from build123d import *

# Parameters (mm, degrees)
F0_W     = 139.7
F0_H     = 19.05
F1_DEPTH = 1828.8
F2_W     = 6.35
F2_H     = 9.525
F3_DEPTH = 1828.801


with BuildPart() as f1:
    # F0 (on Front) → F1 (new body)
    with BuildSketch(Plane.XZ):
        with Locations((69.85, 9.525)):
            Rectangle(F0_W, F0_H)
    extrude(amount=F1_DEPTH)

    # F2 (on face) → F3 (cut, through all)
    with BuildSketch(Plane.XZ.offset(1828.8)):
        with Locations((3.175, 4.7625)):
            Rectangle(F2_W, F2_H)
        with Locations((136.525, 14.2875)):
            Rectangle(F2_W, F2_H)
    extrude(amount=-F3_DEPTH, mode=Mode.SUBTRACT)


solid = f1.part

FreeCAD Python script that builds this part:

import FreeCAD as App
import Part
import Sketcher

V = App.Vector
Q = App.Units.Quantity

doc = App.newDocument("Part")
body = doc.addObject("PartDesign::Body", "Body")

# Sketch on XZ plane
sketch1 = body.newObject("Sketcher::SketchObject", "Sketch")
sketch1.AttachmentSupport = (doc.getObject("XZ_Plane"), [""])
sketch1.MapMode = "FlatFace"
sketch1.addGeometry([
    Part.LineSegment(V(0, 19, 0), V(0, 0, 0)),
    Part.LineSegment(V(0, 0, 0), V(140, 0, 0)),
    Part.LineSegment(V(140, 0, 0), V(140, 19, 0)),
    Part.LineSegment(V(140, 19, 0), V(0, 19, 0)),
], False)
sketch1.addConstraint([
    Sketcher.Constraint("Coincident", 0, 2, 1, 1),
    Sketcher.Constraint("Coincident", 1, 2, 2, 1),
    Sketcher.Constraint("Coincident", 2, 2, 3, 1),
    Sketcher.Constraint("Coincident", 3, 2, 0, 1),
    Sketcher.Constraint("Vertical", 0),
    Sketcher.Constraint("Horizontal", 1),
    Sketcher.Constraint("Vertical", 2),
    Sketcher.Constraint("Horizontal", 3),
    Sketcher.Constraint("Coincident", 0, 2, -1, 1),
    Sketcher.Constraint("DistanceX", 1, 1, 1, 2, Q("5.5 in")),
    Sketcher.Constraint("DistanceY", 0, 2, 0, 1, Q("0.75 in")),
])
pad1 = body.newObject("PartDesign::Pad", "Pad")
pad1.Profile = sketch1
pad1.Length = Q("72 in")

# Sketch on XZ plane
sketch2 = body.newObject("Sketcher::SketchObject", "Sketch001")
sketch2.AttachmentSupport = (doc.getObject("XZ_Plane"), [""])
sketch2.MapMode = "FlatFace"
sketch2.AttachmentOffset = App.Placement(V(0, 0, 72 * 25.4), App.Rotation())
sketch2.addGeometry([
    Part.LineSegment(V(0, 10, 0), V(0, 0, 0)),  # 0
    Part.LineSegment(V(0, 0, 0), V(6, 0, 0)),  # 1
    Part.LineSegment(V(6, 0, 0), V(6, 10, 0)),  # 2
    Part.LineSegment(V(6, 10, 0), V(0, 10, 0)),  # 3
    Part.LineSegment(V(133, 19, 0), V(133, 10, 0)),  # 4
    Part.LineSegment(V(133, 10, 0), V(140, 10, 0)),  # 5
    Part.LineSegment(V(140, 10, 0), V(140, 19, 0)),  # 6
    Part.LineSegment(V(140, 19, 0), V(133, 19, 0)),  # 7
], False)
sketch2.addConstraint([
    Sketcher.Constraint("Coincident", 0, 2, 1, 1),
    Sketcher.Constraint("Coincident", 1, 2, 2, 1),
    Sketcher.Constraint("Coincident", 2, 2, 3, 1),
    Sketcher.Constraint("Coincident", 3, 2, 0, 1),
    Sketcher.Constraint("Coincident", 4, 2, 5, 1),
    Sketcher.Constraint("Coincident", 5, 2, 6, 1),
    Sketcher.Constraint("Coincident", 6, 2, 7, 1),
    Sketcher.Constraint("Coincident", 7, 2, 4, 1),
    Sketcher.Constraint("Vertical", 0),
    Sketcher.Constraint("Horizontal", 1),
    Sketcher.Constraint("Vertical", 2),
    Sketcher.Constraint("Horizontal", 3),
    Sketcher.Constraint("Vertical", 4),
    Sketcher.Constraint("Horizontal", 5),
    Sketcher.Constraint("Vertical", 6),
    Sketcher.Constraint("Horizontal", 7),
    Sketcher.Constraint("Coincident", 0, 2, -1, 1),
    Sketcher.Constraint("Horizontal", 3, 2, 4, 2),
    Sketcher.Constraint("Equal", 3, 5),
    Sketcher.Constraint("Equal", 2, 4),
    Sketcher.Constraint("DistanceX", 2, 2, 4, 2, Q("5 in")),
    Sketcher.Constraint("DistanceX", 1, 1, 1, 2, Q("0.25 in")),
    Sketcher.Constraint("DistanceY", 0, 2, 0, 1, Q("0.375 in")),
])
pocket1 = body.newObject("PartDesign::Pocket", "Pocket")
pocket1.Profile = sketch2
pocket1.Type = "ThroughAll"

doc.recompute()
